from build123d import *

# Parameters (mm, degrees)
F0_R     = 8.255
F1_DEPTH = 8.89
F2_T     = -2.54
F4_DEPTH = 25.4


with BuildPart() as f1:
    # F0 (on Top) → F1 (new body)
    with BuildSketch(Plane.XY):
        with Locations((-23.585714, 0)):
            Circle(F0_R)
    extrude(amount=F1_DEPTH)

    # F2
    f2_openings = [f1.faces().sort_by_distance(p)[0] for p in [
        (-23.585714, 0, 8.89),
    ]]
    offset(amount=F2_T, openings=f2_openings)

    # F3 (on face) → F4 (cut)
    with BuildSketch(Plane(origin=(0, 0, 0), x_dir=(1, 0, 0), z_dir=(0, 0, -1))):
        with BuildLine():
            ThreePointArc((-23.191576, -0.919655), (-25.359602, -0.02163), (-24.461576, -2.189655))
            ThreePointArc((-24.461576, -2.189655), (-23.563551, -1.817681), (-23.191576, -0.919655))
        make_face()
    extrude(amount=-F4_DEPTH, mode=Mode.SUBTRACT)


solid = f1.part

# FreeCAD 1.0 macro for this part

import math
import FreeCAD as App
import Part
import Sketcher
from FreeCAD import Vector
Q = App.Units.Quantity


def faces_at(feature, points):
    """Names of the faces that lie closest to the given points."""
    faces = feature.Shape.Faces
    near = lambda p: min(range(len(faces)), key=lambda i: faces[i].distToShape(Part.Vertex(*p))[0])
    return sorted({f"Face{near(p) + 1}" for p in points})

doc = App.newDocument("Part")
body = doc.addObject("PartDesign::Body", "Body")

# Sketch on XY plane
sketch1 = body.newObject("Sketcher::SketchObject", "Sketch")
sketch1.AttachmentSupport = (doc.getObject("XY_Plane"), [""])
sketch1.MapMode = "FlatFace"
sketch1.addGeometry(Part.Circle(Vector(-24, 0, 0), Vector(0, 0, 1), 8), False)
sketch1.addConstraint([
    Sketcher.Constraint("PointOnObject", 0, 3, -1),
    Sketcher.Constraint("Diameter", 0, Q("0.65 in")),
    Sketcher.Constraint("DistanceX", 0, 3, -1, 1, 23.585714),
])
pad1 = body.newObject("PartDesign::Pad", "Pad")
pad1.Profile = sketch1
pad1.Length = Q("0.35 in")
doc.recompute()

thickness = body.newObject("PartDesign::Thickness", "Thickness")
thickness.Base = (pad1, faces_at(pad1, [(-23.586, 0, 8.89)]))
thickness.Value = Q("0.1 in")
thickness.Reversed = True
thickness.Join = "Arc"

# Sketch on XY plane
sketch2 = body.newObject("Sketcher::SketchObject", "Sketch001")
sketch2.AttachmentSupport = (doc.getObject("XY_Plane"), [""])
sketch2.MapMode = "FlatFace"
sketch2.addGeometry([
    Part.ArcOfCircle(Part.Circle(Vector(-24.5, 0.9, 0), Vector(0, 0, 1), 1.3), math.radians(90), math.radians(360)),
    Part.ArcOfCircle(Part.Circle(Vector(-24.5, 0.9, 0), Vector(0, 0, 1), 1.3), math.radians(0), math.radians(90)),
], False)
sketch2.addConstraint([
    Sketcher.Constraint("Tangent", 0, 1, 1, 2),
    Sketcher.Constraint("Coincident", 1, 1, 0, 2),
    Sketcher.Constraint("Horizontal", 0, 3, 1, 1),
    Sketcher.Constraint("Vertical", 1, 3, 0, 1),
    Sketcher.Constraint("Radius", 0, Q("0.05 in")),
    Sketcher.Constraint("DistanceX", 0, 3, -1, 1, 24.461576),
    Sketcher.Constraint("DistanceY", -1, 1, 0, 3, 0.919655),
])
pocket1 = body.newObject("PartDesign::Pocket", "Pocket")
pocket1.Profile = sketch2
pocket1.Length = Q("1 in")
pocket1.Reversed = True

doc.recompute()
